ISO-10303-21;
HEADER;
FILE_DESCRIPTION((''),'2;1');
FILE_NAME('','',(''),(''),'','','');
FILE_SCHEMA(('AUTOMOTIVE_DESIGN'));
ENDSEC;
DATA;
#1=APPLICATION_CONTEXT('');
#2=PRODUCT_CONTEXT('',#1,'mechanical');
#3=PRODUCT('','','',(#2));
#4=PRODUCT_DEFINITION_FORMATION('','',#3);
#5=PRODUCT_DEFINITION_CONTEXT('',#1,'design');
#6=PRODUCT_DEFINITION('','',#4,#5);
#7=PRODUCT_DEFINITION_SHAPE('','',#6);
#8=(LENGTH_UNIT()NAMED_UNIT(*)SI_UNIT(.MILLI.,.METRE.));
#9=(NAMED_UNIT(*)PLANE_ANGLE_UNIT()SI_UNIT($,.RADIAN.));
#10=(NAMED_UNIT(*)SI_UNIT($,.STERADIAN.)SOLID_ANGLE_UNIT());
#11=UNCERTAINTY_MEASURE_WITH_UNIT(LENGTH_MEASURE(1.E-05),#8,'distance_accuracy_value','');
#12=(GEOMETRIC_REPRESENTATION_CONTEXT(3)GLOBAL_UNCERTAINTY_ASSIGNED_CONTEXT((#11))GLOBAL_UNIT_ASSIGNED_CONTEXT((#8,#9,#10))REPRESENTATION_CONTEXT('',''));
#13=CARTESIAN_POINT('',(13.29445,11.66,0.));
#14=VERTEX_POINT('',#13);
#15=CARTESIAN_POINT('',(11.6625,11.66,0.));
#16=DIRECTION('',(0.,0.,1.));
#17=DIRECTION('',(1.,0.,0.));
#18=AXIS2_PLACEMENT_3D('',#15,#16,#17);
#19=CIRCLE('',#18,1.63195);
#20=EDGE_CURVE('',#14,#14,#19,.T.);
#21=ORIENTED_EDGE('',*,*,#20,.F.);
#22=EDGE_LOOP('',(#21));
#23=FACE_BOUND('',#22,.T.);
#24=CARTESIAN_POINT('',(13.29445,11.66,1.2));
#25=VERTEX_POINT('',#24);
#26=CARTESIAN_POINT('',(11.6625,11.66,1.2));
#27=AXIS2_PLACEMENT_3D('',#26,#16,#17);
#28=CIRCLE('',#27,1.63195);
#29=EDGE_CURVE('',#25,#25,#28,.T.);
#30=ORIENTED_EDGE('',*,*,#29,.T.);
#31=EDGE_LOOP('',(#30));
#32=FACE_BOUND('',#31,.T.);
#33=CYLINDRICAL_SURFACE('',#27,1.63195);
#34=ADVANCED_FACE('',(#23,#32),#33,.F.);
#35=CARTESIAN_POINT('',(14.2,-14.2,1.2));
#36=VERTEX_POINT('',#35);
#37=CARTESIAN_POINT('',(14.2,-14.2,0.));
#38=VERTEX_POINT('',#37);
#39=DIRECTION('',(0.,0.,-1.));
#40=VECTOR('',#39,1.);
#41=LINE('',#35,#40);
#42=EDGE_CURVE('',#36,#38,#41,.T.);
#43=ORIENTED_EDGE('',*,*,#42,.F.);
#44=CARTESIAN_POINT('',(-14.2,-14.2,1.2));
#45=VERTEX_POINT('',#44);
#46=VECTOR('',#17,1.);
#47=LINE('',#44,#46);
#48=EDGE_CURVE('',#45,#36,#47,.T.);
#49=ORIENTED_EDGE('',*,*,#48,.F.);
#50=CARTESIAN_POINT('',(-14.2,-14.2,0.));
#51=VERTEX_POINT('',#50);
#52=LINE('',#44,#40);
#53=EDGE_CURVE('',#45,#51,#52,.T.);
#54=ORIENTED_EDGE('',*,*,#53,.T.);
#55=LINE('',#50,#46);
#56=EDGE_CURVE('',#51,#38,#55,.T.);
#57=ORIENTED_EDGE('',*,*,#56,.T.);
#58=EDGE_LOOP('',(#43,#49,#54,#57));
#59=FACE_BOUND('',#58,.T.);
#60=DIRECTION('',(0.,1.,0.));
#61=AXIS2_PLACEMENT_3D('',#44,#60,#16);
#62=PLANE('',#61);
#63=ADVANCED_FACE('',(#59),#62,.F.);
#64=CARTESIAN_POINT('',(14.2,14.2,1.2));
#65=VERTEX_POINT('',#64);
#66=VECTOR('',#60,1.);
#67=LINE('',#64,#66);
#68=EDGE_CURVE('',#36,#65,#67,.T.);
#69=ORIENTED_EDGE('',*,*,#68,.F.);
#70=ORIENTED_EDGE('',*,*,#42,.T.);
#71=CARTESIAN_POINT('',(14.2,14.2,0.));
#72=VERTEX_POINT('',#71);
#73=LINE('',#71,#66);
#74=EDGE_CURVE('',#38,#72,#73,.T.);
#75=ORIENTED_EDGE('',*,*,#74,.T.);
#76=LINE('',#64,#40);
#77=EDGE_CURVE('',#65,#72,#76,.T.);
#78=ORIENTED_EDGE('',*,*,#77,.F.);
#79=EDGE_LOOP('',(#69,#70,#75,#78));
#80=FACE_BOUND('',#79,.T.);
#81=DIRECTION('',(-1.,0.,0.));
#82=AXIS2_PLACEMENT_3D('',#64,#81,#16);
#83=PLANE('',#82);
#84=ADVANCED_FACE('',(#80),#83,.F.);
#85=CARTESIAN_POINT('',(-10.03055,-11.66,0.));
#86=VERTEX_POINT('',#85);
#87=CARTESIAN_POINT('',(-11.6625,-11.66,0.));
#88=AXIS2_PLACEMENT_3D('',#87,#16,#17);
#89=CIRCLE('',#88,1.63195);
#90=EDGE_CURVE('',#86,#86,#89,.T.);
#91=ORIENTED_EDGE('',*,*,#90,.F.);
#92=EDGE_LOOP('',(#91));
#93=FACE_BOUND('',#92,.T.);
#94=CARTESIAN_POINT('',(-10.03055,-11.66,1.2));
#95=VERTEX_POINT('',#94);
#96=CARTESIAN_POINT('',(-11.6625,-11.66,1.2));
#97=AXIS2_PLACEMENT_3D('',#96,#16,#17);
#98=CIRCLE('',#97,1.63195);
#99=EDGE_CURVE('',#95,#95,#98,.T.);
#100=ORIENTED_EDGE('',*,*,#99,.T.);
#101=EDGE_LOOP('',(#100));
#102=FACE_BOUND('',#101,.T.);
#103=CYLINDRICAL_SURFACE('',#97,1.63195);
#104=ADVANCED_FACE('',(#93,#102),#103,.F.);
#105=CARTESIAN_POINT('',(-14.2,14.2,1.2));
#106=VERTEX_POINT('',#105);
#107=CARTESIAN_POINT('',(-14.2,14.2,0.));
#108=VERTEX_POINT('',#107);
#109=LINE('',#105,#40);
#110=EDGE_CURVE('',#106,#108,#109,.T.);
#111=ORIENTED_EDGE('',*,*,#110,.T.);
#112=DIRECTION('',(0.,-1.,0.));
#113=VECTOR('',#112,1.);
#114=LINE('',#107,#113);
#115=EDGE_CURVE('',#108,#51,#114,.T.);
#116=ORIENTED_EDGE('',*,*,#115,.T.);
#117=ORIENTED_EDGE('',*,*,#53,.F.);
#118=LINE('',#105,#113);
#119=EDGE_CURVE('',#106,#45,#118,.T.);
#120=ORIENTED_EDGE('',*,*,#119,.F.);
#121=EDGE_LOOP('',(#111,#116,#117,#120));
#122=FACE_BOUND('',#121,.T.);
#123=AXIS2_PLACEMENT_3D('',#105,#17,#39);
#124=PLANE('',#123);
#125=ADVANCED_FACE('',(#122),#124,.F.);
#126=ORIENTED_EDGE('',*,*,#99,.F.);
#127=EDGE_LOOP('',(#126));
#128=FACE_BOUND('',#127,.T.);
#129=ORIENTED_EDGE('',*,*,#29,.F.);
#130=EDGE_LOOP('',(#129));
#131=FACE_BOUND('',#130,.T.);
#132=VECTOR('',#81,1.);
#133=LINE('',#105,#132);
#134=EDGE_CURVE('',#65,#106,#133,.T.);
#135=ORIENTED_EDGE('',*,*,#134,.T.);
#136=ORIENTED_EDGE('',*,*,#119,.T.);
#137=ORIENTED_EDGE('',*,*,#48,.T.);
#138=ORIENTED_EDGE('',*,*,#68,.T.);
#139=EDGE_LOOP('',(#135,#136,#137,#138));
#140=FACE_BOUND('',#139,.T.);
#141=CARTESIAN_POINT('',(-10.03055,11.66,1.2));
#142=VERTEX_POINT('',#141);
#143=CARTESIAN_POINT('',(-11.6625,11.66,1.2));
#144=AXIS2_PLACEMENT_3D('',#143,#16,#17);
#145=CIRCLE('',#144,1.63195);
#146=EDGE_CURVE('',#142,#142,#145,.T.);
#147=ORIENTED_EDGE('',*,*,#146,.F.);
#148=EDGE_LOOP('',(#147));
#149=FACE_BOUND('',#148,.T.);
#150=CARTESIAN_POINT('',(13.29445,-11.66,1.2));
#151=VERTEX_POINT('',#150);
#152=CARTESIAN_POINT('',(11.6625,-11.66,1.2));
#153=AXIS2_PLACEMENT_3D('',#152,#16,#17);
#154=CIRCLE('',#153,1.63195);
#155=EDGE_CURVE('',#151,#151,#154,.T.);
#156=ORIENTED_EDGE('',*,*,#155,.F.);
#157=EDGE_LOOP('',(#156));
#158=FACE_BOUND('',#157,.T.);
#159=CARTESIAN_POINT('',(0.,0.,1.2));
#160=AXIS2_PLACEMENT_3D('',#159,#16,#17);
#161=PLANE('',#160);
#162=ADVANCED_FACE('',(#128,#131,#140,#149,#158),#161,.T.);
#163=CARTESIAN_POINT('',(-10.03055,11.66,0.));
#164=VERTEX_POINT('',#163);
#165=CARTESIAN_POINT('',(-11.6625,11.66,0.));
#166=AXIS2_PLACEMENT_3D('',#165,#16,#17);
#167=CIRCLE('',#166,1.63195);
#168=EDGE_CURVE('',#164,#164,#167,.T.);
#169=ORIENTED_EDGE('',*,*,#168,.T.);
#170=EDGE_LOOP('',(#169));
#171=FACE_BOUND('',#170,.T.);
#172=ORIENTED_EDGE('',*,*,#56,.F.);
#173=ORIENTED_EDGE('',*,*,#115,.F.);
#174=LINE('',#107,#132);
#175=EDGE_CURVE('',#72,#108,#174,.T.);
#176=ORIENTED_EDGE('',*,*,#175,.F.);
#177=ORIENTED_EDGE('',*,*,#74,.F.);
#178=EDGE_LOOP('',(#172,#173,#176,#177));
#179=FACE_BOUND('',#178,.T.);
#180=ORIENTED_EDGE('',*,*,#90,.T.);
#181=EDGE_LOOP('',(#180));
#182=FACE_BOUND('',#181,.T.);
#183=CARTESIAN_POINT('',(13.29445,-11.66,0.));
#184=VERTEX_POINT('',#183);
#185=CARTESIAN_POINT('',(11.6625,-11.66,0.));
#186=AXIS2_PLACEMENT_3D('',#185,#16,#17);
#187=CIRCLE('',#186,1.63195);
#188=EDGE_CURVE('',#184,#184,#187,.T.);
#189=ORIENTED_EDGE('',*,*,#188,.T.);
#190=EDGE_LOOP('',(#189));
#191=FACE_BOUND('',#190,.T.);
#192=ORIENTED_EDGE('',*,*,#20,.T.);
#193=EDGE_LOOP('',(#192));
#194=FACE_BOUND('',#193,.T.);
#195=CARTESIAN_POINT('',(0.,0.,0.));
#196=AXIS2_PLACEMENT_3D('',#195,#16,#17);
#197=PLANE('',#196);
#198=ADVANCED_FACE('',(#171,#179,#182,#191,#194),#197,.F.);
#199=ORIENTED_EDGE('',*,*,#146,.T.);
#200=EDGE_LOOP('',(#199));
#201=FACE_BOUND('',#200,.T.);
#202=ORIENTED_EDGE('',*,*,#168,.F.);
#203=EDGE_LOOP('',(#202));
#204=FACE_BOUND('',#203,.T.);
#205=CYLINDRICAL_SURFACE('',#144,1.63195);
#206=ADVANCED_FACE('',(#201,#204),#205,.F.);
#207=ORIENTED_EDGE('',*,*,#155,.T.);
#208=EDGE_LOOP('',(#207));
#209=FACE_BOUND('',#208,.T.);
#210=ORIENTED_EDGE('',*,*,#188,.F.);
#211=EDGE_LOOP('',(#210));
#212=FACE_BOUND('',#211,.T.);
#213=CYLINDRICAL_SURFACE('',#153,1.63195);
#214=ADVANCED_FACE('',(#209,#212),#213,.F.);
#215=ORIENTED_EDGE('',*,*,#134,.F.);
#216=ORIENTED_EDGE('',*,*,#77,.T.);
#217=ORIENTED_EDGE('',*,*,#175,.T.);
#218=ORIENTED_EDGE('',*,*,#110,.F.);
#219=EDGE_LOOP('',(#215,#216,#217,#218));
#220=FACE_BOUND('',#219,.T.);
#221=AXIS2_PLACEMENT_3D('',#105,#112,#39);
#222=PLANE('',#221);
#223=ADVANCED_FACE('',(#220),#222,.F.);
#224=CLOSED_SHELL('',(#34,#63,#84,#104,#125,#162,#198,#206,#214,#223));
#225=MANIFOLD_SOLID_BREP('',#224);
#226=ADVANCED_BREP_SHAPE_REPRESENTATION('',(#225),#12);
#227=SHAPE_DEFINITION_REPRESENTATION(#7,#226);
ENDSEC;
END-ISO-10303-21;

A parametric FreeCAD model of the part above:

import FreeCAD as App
import Part
import Sketcher
from FreeCAD import Vector
Q = App.Units.Quantity


def add_polygon(sketch, points):
    """Adds a closed chain of lines whose ends are joined by coincident constraints."""
    first, n = sketch.GeometryCount, len(points)
    for a, b in zip(points, points[1:] + points[:1]):
        sketch.addGeometry(Part.LineSegment(App.Vector(*a, 0), App.Vector(*b, 0)), False)
    for i in range(n):
        sketch.addConstraint(Sketcher.Constraint("Coincident", first + i, 2, first + (i + 1) % n, 1))

doc = App.newDocument("Part")
body = doc.addObject("PartDesign::Body", "Body")

# Sketch on XY plane
sketch1 = body.newObject("Sketcher::SketchObject", "Sketch")
sketch1.AttachmentSupport = (doc.getObject("XY_Plane"), [""])
sketch1.MapMode = "FlatFace"
add_polygon(sketch1, [(-14, 14), (-14, -14), (14, -14), (14, 14)])  # lines 0-3
sketch1.addConstraint(Sketcher.Constraint("Vertical", 0))
sketch1.addConstraint(Sketcher.Constraint("Horizontal", 1))
sketch1.addConstraint(Sketcher.Constraint("Vertical", 2))
sketch1.addConstraint(Sketcher.Constraint("Horizontal", 3))
sketch1.addConstraint(Sketcher.Constraint("Symmetric", 0, 2, 2, 2, -1, 1))
sketch1.addConstraint(Sketcher.Constraint("Equal", 3, 0))
sketch1.addConstraint(Sketcher.Constraint("DistanceX", 1, 1, 1, 2, Q("28.4 mm")))
pad1 = body.newObject("PartDesign::Pad", "Pad")
pad1.Profile = sketch1
pad1.Length = 1.2

# Sketch on XY plane
sketch2 = body.newObject("Sketcher::SketchObject", "Sketch001")
sketch2.AttachmentSupport = (doc.getObject("XY_Plane"), [""])
sketch2.MapMode = "FlatFace"
sketch2.AttachmentOffset = App.Placement(Vector(0, 0, 1.2), App.Rotation())
sketch2.addGeometry(Part.Circle(Vector(-11.7, 11.7, 0), Vector(0, 0, 1), 1.6), False)
sketch2.addGeometry(Part.Circle(Vector(11.7, 11.7, 0), Vector(0, 0, 1), 1.6), False)
sketch2.addGeometry(Part.Circle(Vector(-11.7, -11.7, 0), Vector(0, 0, 1), 1.6), False)
sketch2.addGeometry(Part.Circle(Vector(11.7, -11.7, 0), Vector(0, 0, 1), 1.6), False)
sketch2.addConstraint(Sketcher.Constraint("Equal", 0, 1))
sketch2.addConstraint(Sketcher.Constraint("Equal", 1, 2))
sketch2.addConstraint(Sketcher.Constraint("Equal", 2, 3))
sketch2.addConstraint(Sketcher.Constraint("Symmetric", 1, 3, 2, 3, -1, 1))
sketch2.addConstraint(Sketcher.Constraint("Symmetric", 0, 3, 3, 3, -1, 1))
sketch2.addConstraint(Sketcher.Constraint("Symmetric", 0, 3, 1, 3, -2))
sketch2.addConstraint(Sketcher.Constraint("Diameter", 0, Q("3.2639 mm")))
sketch2.addConstraint(Sketcher.Constraint("DistanceY", -1, 1, 0, 3, Q("11.66 mm")))
sketch2.addConstraint(Sketcher.Constraint("DistanceX", 0, 3, 1, 3, Q("23.325 mm")))
doc.recompute()
hole = body.newObject("PartDesign::Hole", "Hole")
hole.Profile = sketch2
hole.ThreadType = "None"
hole.Diameter = 3.2639
hole.DepthType = "ThroughAll"

doc.recompute()
